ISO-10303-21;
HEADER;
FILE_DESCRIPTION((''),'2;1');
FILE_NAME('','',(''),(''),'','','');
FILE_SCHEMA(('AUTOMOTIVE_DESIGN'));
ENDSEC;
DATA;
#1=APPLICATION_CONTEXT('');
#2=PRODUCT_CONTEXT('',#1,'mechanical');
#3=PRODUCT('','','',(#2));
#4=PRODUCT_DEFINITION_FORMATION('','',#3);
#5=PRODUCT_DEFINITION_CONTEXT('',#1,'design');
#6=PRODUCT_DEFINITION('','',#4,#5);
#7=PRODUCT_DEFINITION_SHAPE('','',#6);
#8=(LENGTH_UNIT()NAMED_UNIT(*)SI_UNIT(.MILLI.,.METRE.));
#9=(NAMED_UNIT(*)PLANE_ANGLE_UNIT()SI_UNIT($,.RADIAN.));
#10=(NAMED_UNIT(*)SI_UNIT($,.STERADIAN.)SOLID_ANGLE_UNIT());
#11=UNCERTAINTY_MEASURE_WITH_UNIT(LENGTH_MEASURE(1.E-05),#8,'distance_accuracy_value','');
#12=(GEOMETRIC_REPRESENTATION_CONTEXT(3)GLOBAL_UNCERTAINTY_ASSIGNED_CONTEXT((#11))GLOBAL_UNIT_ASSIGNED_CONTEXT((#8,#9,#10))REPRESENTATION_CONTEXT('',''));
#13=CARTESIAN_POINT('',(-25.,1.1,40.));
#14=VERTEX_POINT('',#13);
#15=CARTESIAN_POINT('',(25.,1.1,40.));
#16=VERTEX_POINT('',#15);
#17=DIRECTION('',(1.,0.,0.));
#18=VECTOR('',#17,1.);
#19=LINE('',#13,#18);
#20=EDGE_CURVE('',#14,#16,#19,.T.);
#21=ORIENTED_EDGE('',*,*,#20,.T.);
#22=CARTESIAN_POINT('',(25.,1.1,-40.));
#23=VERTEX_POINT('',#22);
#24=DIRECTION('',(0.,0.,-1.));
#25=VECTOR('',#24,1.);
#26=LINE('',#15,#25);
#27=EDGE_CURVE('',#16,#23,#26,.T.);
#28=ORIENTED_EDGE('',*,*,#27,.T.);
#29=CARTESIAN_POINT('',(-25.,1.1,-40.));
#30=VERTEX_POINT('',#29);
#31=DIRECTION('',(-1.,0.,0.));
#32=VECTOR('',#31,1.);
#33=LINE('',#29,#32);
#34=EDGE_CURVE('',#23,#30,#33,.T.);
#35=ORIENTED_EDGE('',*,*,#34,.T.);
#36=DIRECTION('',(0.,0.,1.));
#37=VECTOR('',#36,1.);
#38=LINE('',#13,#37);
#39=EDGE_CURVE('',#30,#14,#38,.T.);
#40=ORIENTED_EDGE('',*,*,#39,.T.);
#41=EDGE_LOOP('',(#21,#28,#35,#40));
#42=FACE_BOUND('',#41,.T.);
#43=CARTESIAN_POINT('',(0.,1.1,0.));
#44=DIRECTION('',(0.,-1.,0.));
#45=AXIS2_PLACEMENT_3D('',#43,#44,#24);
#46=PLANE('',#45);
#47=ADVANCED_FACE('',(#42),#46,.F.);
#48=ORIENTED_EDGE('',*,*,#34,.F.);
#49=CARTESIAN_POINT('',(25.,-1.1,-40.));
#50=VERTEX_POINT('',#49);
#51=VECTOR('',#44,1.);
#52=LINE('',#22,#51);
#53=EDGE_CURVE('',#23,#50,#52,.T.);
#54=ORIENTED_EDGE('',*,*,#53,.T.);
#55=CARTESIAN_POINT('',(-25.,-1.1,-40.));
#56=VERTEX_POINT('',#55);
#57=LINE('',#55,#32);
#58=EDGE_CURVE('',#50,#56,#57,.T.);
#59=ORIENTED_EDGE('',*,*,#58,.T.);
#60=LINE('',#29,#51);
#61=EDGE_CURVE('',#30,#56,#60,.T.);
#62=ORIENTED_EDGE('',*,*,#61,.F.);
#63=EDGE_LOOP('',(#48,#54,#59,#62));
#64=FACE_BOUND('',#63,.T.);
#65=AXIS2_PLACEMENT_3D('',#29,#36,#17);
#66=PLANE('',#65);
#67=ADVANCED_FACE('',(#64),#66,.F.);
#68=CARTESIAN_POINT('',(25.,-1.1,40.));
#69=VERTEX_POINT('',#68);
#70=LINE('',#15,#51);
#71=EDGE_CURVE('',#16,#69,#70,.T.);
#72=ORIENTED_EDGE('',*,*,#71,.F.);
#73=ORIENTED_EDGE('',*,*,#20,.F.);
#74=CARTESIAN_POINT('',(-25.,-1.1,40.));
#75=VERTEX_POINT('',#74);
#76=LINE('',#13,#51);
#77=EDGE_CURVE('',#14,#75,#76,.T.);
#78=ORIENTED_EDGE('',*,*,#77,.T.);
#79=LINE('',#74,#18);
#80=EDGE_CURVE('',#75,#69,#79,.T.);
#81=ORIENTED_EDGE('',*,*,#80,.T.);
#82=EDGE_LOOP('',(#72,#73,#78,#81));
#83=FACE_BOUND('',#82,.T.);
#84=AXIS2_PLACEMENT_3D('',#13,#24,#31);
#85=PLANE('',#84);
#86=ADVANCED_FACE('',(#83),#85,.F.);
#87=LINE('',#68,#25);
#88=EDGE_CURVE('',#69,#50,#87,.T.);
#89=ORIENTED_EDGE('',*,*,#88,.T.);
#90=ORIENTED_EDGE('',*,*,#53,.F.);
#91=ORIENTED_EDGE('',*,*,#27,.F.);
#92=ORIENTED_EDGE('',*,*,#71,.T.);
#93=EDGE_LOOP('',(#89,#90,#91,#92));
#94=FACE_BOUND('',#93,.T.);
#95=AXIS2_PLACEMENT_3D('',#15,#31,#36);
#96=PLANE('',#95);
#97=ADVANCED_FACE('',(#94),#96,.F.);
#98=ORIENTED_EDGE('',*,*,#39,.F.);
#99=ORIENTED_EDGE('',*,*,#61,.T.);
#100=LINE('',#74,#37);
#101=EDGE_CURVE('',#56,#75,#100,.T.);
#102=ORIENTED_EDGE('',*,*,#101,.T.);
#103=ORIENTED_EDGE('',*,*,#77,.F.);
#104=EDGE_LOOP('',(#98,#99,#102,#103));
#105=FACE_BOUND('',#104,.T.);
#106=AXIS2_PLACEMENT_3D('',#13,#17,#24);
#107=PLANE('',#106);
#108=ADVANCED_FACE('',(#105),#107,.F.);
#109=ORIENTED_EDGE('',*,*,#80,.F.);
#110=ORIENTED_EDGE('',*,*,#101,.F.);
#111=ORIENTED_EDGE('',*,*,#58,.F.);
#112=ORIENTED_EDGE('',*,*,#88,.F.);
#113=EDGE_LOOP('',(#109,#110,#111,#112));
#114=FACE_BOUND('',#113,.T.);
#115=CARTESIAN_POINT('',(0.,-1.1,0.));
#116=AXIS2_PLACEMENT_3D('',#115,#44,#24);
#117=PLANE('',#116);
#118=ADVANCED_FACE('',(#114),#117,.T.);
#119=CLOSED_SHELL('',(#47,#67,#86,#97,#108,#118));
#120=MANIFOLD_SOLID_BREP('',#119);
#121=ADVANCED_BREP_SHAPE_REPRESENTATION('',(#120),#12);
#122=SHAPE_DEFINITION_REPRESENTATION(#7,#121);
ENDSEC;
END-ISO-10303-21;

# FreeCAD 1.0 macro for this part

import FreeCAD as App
import Part
import Sketcher
from FreeCAD import Vector


def add_polygon(sketch, points):
    """Adds a closed chain of lines whose ends are joined by coincident constraints."""
    first, n = sketch.GeometryCount, len(points)
    for a, b in zip(points, points[1:] + points[:1]):
        sketch.addGeometry(Part.LineSegment(App.Vector(*a, 0), App.Vector(*b, 0)), False)
    for i in range(n):
        sketch.addConstraint(Sketcher.Constraint("Coincident", first + i, 2, first + (i + 1) % n, 1))

doc = App.newDocument("Part")
params = doc.addObject("Spreadsheet::Sheet", "Params")
for row, (alias, value) in enumerate([
    ("sketch1_width", "50 mm"),
    ("sketch1_height", "80 mm"),
    ("pad1_length", "2.2 mm"),
], start=1):
    params.set(f"A{row}", alias)
    params.set(f"B{row}", "=" + value)
    params.setAlias(f"B{row}", alias)

body = doc.addObject("PartDesign::Body", "Body")

# Sketch on XZ plane
sketch1 = body.newObject("Sketcher::SketchObject", "Sketch")
sketch1.AttachmentSupport = (doc.getObject("XZ_Plane"), [""])
sketch1.MapMode = "FlatFace"
add_polygon(sketch1, [(-25, -40), (-25, 40), (25, 40), (25, -40)])  # lines 0-3
sketch1.addConstraint(Sketcher.Constraint("Vertical", 0))
sketch1.addConstraint(Sketcher.Constraint("Horizontal", 1))
sketch1.addConstraint(Sketcher.Constraint("Vertical", 2))
sketch1.addConstraint(Sketcher.Constraint("Horizontal", 3))
sketch1.addConstraint(Sketcher.Constraint("Symmetric", 0, 2, 2, 2, -1, 1))
sketch1.addConstraint(Sketcher.Constraint("DistanceX", 1, 1, 1, 2, 50.0))
sketch1.addConstraint(Sketcher.Constraint("DistanceY", 0, 1, 0, 2, 80.0))
sketch1.setExpression("Constraints[9]", "Params.sketch1_width")
sketch1.setExpression("Constraints[10]", "Params.sketch1_height")
pad1 = body.newObject("PartDesign::Pad", "Pad")
pad1.Profile = sketch1
pad1.setExpression("Length", "Params.pad1_length")
pad1.Midplane = True

doc.recompute()
